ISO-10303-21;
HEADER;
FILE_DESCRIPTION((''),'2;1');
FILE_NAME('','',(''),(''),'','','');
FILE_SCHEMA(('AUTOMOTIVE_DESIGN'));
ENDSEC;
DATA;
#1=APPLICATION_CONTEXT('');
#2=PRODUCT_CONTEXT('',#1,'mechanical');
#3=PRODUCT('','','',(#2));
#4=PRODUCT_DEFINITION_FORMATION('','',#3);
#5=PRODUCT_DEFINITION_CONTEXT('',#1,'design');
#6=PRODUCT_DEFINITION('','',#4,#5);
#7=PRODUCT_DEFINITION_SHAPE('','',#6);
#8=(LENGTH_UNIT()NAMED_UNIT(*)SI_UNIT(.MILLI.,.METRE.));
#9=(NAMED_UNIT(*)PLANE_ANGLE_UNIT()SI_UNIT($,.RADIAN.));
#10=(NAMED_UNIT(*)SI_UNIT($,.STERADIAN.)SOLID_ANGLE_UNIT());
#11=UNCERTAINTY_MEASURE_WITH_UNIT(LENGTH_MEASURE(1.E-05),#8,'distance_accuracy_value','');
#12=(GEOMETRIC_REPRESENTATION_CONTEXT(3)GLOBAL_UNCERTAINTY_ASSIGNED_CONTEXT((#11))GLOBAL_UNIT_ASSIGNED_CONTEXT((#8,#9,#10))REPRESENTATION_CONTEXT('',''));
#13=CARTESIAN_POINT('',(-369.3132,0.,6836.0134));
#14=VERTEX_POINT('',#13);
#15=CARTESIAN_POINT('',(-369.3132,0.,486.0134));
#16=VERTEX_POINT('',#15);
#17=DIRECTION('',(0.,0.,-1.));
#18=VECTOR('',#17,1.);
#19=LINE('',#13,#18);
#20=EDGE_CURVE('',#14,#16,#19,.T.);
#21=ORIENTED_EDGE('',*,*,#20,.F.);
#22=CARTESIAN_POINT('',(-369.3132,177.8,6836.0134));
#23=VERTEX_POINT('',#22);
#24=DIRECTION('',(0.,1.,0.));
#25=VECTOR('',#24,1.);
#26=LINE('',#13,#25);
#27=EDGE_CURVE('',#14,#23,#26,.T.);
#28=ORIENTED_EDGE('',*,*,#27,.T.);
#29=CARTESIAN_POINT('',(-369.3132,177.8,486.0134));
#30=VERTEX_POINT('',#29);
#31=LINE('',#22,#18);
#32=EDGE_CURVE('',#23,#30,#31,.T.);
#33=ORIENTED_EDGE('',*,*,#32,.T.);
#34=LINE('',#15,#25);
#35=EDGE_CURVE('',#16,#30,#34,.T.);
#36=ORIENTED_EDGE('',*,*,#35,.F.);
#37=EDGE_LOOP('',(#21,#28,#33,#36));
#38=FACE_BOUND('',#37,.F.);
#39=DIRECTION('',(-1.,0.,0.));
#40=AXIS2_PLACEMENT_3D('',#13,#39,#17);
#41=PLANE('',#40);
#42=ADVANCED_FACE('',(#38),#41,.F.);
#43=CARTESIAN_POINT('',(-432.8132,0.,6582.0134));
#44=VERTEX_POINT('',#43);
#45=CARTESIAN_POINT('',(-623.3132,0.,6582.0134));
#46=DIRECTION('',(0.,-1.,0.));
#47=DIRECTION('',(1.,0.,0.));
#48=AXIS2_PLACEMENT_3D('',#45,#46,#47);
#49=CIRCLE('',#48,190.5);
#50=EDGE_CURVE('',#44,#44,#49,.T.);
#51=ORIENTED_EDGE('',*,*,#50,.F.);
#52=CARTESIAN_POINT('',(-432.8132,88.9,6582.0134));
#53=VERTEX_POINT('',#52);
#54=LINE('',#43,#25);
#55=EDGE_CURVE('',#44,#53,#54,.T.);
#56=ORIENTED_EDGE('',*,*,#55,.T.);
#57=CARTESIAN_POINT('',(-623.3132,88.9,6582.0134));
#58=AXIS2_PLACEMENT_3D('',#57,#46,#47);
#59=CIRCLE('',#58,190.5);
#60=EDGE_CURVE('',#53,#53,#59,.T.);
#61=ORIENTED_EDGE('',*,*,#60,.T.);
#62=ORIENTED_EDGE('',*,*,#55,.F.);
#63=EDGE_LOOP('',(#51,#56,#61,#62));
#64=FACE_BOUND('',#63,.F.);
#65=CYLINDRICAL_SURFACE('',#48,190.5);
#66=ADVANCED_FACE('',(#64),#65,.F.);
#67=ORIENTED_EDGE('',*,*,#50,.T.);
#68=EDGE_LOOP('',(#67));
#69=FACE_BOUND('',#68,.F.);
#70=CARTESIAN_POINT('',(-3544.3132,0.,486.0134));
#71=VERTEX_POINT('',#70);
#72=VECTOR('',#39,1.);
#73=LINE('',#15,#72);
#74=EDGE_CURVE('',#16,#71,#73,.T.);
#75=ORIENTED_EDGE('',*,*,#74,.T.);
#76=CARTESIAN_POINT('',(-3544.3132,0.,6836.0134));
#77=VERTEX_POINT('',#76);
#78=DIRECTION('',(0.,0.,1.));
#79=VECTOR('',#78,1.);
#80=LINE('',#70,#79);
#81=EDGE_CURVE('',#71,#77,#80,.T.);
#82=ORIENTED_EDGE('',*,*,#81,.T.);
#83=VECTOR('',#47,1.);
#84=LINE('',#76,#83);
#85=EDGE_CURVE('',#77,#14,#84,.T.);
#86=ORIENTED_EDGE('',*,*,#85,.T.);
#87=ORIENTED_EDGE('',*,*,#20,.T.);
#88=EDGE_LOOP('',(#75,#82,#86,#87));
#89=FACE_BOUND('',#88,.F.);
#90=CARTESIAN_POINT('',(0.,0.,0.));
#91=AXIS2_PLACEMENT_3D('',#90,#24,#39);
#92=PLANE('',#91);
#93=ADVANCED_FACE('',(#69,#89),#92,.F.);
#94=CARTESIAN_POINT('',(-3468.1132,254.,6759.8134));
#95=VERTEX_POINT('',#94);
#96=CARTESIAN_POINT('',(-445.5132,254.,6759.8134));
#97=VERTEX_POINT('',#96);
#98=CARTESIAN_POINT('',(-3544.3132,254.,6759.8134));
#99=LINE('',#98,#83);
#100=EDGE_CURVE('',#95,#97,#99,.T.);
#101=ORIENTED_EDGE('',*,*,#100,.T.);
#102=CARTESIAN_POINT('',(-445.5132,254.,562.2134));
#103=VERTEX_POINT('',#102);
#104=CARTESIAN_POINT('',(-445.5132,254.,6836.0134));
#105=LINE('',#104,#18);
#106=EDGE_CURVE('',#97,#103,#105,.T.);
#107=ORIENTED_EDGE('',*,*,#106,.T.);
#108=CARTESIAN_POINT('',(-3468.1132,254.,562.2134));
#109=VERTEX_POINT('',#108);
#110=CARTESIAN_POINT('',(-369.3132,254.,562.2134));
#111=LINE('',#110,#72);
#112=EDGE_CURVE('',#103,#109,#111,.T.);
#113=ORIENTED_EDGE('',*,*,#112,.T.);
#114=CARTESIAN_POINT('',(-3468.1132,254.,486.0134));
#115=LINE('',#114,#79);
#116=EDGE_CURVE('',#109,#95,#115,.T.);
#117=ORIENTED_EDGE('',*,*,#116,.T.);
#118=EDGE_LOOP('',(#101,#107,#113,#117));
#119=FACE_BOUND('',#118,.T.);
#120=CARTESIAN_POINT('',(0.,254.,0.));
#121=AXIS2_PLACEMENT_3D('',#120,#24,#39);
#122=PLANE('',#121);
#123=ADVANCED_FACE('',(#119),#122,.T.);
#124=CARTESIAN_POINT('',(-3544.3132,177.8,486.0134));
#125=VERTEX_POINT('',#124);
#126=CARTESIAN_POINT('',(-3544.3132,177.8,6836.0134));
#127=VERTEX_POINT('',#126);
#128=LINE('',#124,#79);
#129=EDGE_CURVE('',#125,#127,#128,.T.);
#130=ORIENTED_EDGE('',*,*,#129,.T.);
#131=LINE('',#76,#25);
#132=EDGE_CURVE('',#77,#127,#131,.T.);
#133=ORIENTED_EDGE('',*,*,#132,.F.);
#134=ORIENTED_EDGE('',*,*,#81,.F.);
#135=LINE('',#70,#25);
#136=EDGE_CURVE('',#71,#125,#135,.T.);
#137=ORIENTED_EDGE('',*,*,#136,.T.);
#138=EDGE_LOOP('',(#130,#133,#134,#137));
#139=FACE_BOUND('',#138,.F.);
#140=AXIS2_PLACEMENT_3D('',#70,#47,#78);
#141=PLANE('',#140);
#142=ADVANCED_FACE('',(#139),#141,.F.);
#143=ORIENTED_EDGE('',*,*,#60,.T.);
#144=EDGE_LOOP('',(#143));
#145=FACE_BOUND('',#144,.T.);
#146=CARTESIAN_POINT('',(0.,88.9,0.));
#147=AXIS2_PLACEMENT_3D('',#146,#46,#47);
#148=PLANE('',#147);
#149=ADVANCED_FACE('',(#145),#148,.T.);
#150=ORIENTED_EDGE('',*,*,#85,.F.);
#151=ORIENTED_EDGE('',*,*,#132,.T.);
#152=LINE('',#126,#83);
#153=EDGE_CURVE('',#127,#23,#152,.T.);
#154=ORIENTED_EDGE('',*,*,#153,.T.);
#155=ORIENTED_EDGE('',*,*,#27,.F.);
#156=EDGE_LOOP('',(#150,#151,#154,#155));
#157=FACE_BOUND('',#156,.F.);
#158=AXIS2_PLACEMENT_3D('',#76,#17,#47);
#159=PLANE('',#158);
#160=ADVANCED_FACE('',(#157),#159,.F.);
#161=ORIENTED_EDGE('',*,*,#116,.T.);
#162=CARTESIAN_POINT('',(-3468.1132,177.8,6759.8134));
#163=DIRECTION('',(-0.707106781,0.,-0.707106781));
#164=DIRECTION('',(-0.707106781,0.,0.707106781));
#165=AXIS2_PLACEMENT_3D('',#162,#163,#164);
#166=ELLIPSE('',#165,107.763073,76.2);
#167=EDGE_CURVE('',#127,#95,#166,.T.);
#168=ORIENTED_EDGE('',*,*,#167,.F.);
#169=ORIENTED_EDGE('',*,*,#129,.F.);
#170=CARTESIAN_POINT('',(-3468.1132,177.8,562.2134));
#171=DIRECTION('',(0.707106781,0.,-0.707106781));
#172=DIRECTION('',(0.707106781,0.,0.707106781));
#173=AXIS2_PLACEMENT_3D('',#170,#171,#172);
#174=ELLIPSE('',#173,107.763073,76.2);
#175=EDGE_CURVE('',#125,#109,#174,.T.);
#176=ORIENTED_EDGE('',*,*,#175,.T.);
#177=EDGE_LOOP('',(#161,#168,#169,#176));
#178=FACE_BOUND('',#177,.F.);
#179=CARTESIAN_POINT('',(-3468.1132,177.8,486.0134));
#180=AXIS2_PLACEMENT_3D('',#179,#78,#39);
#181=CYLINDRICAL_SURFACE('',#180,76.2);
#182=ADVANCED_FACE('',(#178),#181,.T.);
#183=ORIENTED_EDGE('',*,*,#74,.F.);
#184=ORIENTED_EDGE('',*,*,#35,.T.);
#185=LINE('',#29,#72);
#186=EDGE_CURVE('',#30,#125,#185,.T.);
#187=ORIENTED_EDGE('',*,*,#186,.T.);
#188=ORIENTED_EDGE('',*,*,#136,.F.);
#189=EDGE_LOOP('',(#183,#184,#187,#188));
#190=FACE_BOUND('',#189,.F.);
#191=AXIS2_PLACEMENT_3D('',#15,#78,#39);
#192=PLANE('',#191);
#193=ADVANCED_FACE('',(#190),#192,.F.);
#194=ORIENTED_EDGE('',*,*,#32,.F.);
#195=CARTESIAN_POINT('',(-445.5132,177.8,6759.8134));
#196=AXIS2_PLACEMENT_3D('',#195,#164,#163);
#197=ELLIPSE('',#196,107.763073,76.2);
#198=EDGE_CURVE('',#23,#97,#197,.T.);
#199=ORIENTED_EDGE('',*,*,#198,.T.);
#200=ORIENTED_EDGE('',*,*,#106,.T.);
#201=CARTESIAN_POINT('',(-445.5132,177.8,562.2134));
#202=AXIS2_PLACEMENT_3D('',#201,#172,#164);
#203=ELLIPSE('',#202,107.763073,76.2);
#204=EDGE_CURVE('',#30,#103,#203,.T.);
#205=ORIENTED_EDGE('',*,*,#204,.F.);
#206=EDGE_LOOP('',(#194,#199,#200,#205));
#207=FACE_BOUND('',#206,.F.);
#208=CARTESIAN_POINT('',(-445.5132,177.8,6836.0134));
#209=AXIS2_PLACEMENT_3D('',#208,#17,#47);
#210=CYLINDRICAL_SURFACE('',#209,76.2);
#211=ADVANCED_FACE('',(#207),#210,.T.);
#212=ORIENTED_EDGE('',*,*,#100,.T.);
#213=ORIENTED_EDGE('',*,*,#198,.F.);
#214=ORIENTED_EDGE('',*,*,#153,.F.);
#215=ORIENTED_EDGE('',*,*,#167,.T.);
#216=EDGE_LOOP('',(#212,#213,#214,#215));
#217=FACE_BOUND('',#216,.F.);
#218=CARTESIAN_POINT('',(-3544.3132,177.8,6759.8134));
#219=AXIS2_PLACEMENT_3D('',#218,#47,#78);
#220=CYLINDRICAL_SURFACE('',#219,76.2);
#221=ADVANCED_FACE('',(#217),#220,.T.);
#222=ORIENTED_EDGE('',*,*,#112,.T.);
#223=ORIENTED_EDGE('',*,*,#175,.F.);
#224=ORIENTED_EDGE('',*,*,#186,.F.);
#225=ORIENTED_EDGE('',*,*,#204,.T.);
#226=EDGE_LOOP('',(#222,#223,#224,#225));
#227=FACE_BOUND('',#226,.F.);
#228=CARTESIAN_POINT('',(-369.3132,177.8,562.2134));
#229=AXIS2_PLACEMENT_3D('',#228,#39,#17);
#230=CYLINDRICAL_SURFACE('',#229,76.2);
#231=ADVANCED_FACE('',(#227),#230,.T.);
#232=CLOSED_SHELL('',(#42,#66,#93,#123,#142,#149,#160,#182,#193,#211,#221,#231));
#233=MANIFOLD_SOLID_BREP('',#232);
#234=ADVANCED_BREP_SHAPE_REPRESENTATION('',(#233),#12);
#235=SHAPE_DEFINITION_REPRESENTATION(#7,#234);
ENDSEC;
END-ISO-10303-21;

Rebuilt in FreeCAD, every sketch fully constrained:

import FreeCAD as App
import Part
import Sketcher
Q = App.Units.Quantity


def edges_at(feature, points):
    """Names of the edges that pass closest to the given points."""
    edges = feature.Shape.Edges
    near = lambda p: min(range(len(edges)), key=lambda i: edges[i].distToShape(Part.Vertex(*p))[0])
    return sorted({f"Edge{near(p) + 1}" for p in points})


def add_polygon(sketch, points):
    """Adds a closed chain of lines whose ends are joined by coincident constraints."""
    first, n = sketch.GeometryCount, len(points)
    for a, b in zip(points, points[1:] + points[:1]):
        sketch.addGeometry(Part.LineSegment(App.Vector(*a, 0), App.Vector(*b, 0)), False)
    for i in range(n):
        sketch.addConstraint(Sketcher.Constraint("Coincident", first + i, 2, first + (i + 1) % n, 1))

doc = App.newDocument("Part")
params = doc.addObject("Spreadsheet::Sheet", "Params")
for row, (alias, value) in enumerate([
    ("sketch1_width", "125 in"),
    ("sketch1_height", "250 in"),
    ("pad1_length", "10 in"),
    ("fillet_radius", "3 in"),
    ("sketch2_diameter", "15 in"),
    ("pocket1_length", "3.5 in"),
], start=1):
    params.set(f"A{row}", alias)
    params.set(f"B{row}", "=" + value)
    params.setAlias(f"B{row}", alias)

body = doc.addObject("PartDesign::Body", "Body")

# Sketch on XZ plane
sketch1 = body.newObject("Sketcher::SketchObject", "Sketch")
sketch1.AttachmentSupport = (doc.getObject("XZ_Plane"), [""])
sketch1.MapMode = "FlatFace"
add_polygon(sketch1, [(-3544, 486), (-3544, 6836), (-369, 6836), (-369, 486)])  # lines 0-3
sketch1.addConstraint([
    Sketcher.Constraint("Vertical", 0),
    Sketcher.Constraint("Horizontal", 1),
    Sketcher.Constraint("Vertical", 2),
    Sketcher.Constraint("Horizontal", 3),
    Sketcher.Constraint("DistanceX", 1, 1, 1, 2, Q("125 in")),
    Sketcher.Constraint("DistanceY", 0, 1, 0, 2, Q("250 in")),
    Sketcher.Constraint("DistanceX", 0, 2, -1, 1, Q("139.5399 in")),
    Sketcher.Constraint("DistanceY", -1, 1, 0, 2, Q("6836.0134 mm")),
])
sketch1.setExpression("Constraints[8]", "Params.sketch1_width")
sketch1.setExpression("Constraints[9]", "Params.sketch1_height")
pad1 = body.newObject("PartDesign::Pad", "Pad")
pad1.Profile = sketch1
pad1.setExpression("Length", "Params.pad1_length")
pad1.Reversed = True
doc.recompute()

fillet = body.newObject("PartDesign::Fillet", "Fillet")
fillet.Base = (pad1, edges_at(pad1, [
    (-3544.313, 254, 3661.013),
    (-1956.813, 254, 486.013),
    (-369.313, 254, 3661.013),
    (-1956.813, 254, 6836.013),
]))
fillet.setExpression("Radius", "Params.fillet_radius")

# Sketch on XZ plane
sketch2 = body.newObject("Sketcher::SketchObject", "Sketch001")
sketch2.AttachmentSupport = (doc.getObject("XZ_Plane"), [""])
sketch2.MapMode = "FlatFace"
sketch2.addGeometry(Part.Circle(App.Vector(-623, 6582, 0), App.Vector(0, 0, 1), 190), False)
sketch2.addConstraint([
    Sketcher.Constraint("Diameter", 0, Q("15 in")),
    Sketcher.Constraint("DistanceX", 0, 3, -1, 1, Q("24.5399 in")),
    Sketcher.Constraint("DistanceY", -1, 1, 0, 3, Q("6582.0134 mm")),
])
sketch2.setExpression("Constraints[0]", "Params.sketch2_diameter")
pocket1 = body.newObject("PartDesign::Pocket", "Pocket")
pocket1.Profile = sketch2
pocket1.setExpression("Length", "Params.pocket1_length")

doc.recompute()
